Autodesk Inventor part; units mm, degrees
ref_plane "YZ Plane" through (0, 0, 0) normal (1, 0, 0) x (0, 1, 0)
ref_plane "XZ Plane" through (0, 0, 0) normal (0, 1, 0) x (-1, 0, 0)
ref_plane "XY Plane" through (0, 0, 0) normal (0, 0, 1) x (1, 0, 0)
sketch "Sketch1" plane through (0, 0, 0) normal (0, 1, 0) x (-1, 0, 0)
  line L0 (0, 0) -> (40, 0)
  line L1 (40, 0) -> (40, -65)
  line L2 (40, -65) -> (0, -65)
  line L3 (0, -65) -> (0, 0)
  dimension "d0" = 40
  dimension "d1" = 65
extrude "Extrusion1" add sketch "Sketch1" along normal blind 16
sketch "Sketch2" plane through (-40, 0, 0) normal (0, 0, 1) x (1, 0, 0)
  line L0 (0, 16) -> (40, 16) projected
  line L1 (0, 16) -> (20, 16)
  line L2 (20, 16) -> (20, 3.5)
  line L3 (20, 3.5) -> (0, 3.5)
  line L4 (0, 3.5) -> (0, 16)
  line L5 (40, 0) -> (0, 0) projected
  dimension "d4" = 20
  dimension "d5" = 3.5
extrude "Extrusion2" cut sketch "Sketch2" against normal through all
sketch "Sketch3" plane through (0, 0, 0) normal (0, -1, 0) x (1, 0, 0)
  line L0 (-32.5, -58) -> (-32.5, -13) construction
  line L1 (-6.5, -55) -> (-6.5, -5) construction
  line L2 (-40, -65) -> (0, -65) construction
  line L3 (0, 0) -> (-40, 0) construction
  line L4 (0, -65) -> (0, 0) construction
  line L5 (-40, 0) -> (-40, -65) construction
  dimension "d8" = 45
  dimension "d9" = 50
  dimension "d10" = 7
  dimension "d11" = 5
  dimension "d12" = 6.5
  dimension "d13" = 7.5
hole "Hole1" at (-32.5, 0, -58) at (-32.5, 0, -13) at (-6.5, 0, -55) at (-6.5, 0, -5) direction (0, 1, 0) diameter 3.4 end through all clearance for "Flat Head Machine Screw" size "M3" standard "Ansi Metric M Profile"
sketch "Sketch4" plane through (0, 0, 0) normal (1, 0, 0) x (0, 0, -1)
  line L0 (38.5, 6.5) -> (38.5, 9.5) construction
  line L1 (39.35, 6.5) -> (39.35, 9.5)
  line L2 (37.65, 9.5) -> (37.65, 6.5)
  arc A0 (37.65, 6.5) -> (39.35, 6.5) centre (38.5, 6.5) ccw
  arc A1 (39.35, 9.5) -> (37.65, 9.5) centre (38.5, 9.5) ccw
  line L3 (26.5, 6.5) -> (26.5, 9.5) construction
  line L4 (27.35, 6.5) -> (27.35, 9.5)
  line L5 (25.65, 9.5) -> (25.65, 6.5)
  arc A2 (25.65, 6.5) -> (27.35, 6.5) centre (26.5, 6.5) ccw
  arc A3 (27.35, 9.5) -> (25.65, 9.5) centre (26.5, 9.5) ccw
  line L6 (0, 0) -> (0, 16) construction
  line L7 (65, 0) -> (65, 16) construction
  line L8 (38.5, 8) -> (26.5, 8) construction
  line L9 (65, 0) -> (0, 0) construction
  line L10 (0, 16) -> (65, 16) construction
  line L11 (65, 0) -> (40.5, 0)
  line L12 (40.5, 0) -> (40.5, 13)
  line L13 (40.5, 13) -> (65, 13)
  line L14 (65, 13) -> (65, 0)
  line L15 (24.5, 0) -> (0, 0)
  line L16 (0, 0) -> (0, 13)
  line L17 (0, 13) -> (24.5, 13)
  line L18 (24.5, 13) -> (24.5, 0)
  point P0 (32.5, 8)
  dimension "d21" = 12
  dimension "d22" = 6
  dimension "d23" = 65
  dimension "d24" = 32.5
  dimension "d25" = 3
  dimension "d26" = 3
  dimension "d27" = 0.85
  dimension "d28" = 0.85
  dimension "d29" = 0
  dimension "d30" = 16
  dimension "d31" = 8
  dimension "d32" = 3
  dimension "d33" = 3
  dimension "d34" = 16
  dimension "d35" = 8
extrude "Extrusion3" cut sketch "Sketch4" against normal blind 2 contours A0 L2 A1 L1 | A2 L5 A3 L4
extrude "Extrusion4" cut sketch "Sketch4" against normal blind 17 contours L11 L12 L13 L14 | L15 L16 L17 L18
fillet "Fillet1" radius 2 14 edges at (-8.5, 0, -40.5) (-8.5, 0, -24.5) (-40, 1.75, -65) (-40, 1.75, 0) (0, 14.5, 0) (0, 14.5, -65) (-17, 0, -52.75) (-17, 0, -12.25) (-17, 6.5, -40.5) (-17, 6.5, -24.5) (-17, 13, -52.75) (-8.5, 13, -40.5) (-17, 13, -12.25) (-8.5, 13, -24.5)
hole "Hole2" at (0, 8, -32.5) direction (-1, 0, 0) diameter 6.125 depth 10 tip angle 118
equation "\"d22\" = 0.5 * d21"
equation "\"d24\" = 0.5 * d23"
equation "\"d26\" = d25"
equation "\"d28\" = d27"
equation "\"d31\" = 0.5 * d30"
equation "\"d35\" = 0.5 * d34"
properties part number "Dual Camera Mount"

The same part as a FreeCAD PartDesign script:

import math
import FreeCAD as App
import Part
import Sketcher
from FreeCAD import Vector
Q = App.Units.Quantity


def edges_at(feature, points):
    """Names of the edges that pass closest to the given points."""
    edges = feature.Shape.Edges
    near = lambda p: min(range(len(edges)), key=lambda i: edges[i].distToShape(Part.Vertex(*p))[0])
    return sorted({f"Edge{near(p) + 1}" for p in points})

doc = App.newDocument("Part")
body = doc.addObject("PartDesign::Body", "Body")

sketch1 = body.newObject("Sketcher::SketchObject", "Sketch")
sketch1.AttachmentSupport = (doc.getObject("XZ_Plane"), [""])
sketch1.MapMode = "FlatFace"
sketch1.addGeometry(Part.LineSegment(Vector(-40, 0, 0), Vector(0, 0, 0)), False)
sketch1.addGeometry(Part.LineSegment(Vector(0, 0, 0), Vector(0, -65, 0)), False)
sketch1.addGeometry(Part.LineSegment(Vector(0, -65, 0), Vector(-40, -65, 0)), False)
sketch1.addGeometry(Part.LineSegment(Vector(-40, -65, 0), Vector(-40, 0, 0)), False)
sketch1.addConstraint(Sketcher.Constraint("Coincident", 0, 2, 1, 1))
sketch1.addConstraint(Sketcher.Constraint("Coincident", 1, 2, 2, 1))
sketch1.addConstraint(Sketcher.Constraint("Coincident", 2, 2, 3, 1))
sketch1.addConstraint(Sketcher.Constraint("Coincident", 3, 2, 0, 1))
sketch1.addConstraint(Sketcher.Constraint("Horizontal", 0))
sketch1.addConstraint(Sketcher.Constraint("Vertical", 1))
sketch1.addConstraint(Sketcher.Constraint("Horizontal", 2))
sketch1.addConstraint(Sketcher.Constraint("Vertical", 3))
sketch1.addConstraint(Sketcher.Constraint("Coincident", 0, 2, -1, 1))
sketch1.addConstraint(Sketcher.Constraint("DistanceX", 0, 1, 0, 2, Q("40 mm")))
sketch1.addConstraint(Sketcher.Constraint("DistanceY", 1, 2, 1, 1, Q("65 mm")))
pad1 = body.newObject("PartDesign::Pad", "Pad")
pad1.Profile = sketch1
pad1.Length = 16
pad1.Reversed = True

sketch2 = body.newObject("Sketcher::SketchObject", "Sketch001")
sketch2.AttachmentSupport = (doc.getObject("XY_Plane"), [""])
sketch2.MapMode = "FlatFace"
sketch2.addGeometry(Part.LineSegment(Vector(-20, 16, 0), Vector(-40, 16, 0)), False)
sketch2.addGeometry(Part.LineSegment(Vector(-40, 16, 0), Vector(-40, 4, 0)), False)
sketch2.addGeometry(Part.LineSegment(Vector(-40, 4, 0), Vector(-20, 4, 0)), False)
sketch2.addGeometry(Part.LineSegment(Vector(-20, 4, 0), Vector(-20, 16, 0)), False)
sketch2.addConstraint(Sketcher.Constraint("Coincident", 0, 2, 1, 1))
sketch2.addConstraint(Sketcher.Constraint("Coincident", 1, 2, 2, 1))
sketch2.addConstraint(Sketcher.Constraint("Coincident", 2, 2, 3, 1))
sketch2.addConstraint(Sketcher.Constraint("Coincident", 3, 2, 0, 1))
sketch2.addConstraint(Sketcher.Constraint("Horizontal", 0))
sketch2.addConstraint(Sketcher.Constraint("Vertical", 1))
sketch2.addConstraint(Sketcher.Constraint("Horizontal", 2))
sketch2.addConstraint(Sketcher.Constraint("Vertical", 3))
sketch2.addConstraint(Sketcher.Constraint("DistanceX", 0, 2, 0, 1, Q("20 mm")))
sketch2.addConstraint(Sketcher.Constraint("DistanceX", 2, 2, -1, 1, Q("20 mm")))
sketch2.addConstraint(Sketcher.Constraint("DistanceY", -1, 1, 1, 2, Q("3.5 mm")))
sketch2.addConstraint(Sketcher.Constraint("DistanceY", 1, 2, 1, 1, Q("12.5 mm")))
pocket1 = body.newObject("PartDesign::Pocket", "Pocket")
pocket1.Profile = sketch2
pocket1.Type = "ThroughAll"

sketch3 = body.newObject("Sketcher::SketchObject", "Sketch002")
sketch3.AttachmentSupport = (doc.getObject("XZ_Plane"), [""])
sketch3.MapMode = "FlatFace"
sketch3.addGeometry(Part.Circle(Vector(-32.5, -58, 0), Vector(0, 0, 1), 1.7), False)
sketch3.addGeometry(Part.Circle(Vector(-32.5, -13, 0), Vector(0, 0, 1), 1.7), False)
sketch3.addGeometry(Part.Circle(Vector(-6.5, -55, 0), Vector(0, 0, 1), 1.7), False)
sketch3.addGeometry(Part.Circle(Vector(-6.5, -5, 0), Vector(0, 0, 1), 1.7), False)
sketch3.addConstraint(Sketcher.Constraint("Equal", 0, 1))
sketch3.addConstraint(Sketcher.Constraint("Equal", 1, 2))
sketch3.addConstraint(Sketcher.Constraint("Equal", 2, 3))
sketch3.addConstraint(Sketcher.Constraint("Vertical", 0, 3, 1, 3))
sketch3.addConstraint(Sketcher.Constraint("Vertical", 2, 3, 3, 3))
sketch3.addConstraint(Sketcher.Constraint("Diameter", 0, Q("3.4 mm")))
sketch3.addConstraint(Sketcher.Constraint("DistanceY", 0, 3, -1, 1, Q("58 mm")))
sketch3.addConstraint(Sketcher.Constraint("DistanceY", 1, 3, -1, 1, Q("13 mm")))
sketch3.addConstraint(Sketcher.Constraint("DistanceY", 2, 3, -1, 1, Q("55 mm")))
sketch3.addConstraint(Sketcher.Constraint("DistanceY", 3, 3, -1, 1, Q("5 mm")))
sketch3.addConstraint(Sketcher.Constraint("DistanceX", 0, 3, 2, 3, Q("26 mm")))
sketch3.addConstraint(Sketcher.Constraint("DistanceX", 0, 3, -1, 1, Q("32.5 mm")))
doc.recompute()
hole = body.newObject("PartDesign::Hole", "Hole")
hole.Profile = sketch3
hole.ThreadType = "None"
hole.Diameter = 3.4
hole.DepthType = "ThroughAll"

sketch4 = body.newObject("Sketcher::SketchObject", "Sketch003")
sketch4.AttachmentSupport = (doc.getObject("YZ_Plane"), [""])
sketch4.MapMode = "FlatFace"
sketch4.addGeometry(Part.ArcOfCircle(Part.Circle(Vector(6.5, -38.5, 0), Vector(0, 0, 1), 0.9), math.radians(90), math.radians(270)), False)
sketch4.addGeometry(Part.LineSegment(Vector(6.5, -39.4, 0), Vector(9.5, -39.4, 0)), False)
sketch4.addGeometry(Part.ArcOfCircle(Part.Circle(Vector(9.5, -38.5, 0), Vector(0, 0, 1), 0.9), math.radians(-90), math.radians(90)), False)
sketch4.addGeometry(Part.LineSegment(Vector(9.5, -37.6, 0), Vector(6.5, -37.6, 0)), False)
sketch4.addGeometry(Part.ArcOfCircle(Part.Circle(Vector(6.5, -26.5, 0), Vector(0, 0, 1), 0.9), math.radians(90), math.radians(270)), False)
sketch4.addGeometry(Part.LineSegment(Vector(6.5, -27.4, 0), Vector(9.5, -27.4, 0)), False)
sketch4.addGeometry(Part.ArcOfCircle(Part.Circle(Vector(9.5, -26.5, 0), Vector(0, 0, 1), 0.9), math.radians(-90), math.radians(90)), False)
sketch4.addGeometry(Part.LineSegment(Vector(9.5, -25.6, 0), Vector(6.5, -25.6, 0)), False)
sketch4.addConstraint(Sketcher.Constraint("Tangent", 0, 2, 1, 1))
sketch4.addConstraint(Sketcher.Constraint("Tangent", 1, 2, 2, 1))
sketch4.addConstraint(Sketcher.Constraint("Tangent", 2, 2, 3, 1))
sketch4.addConstraint(Sketcher.Constraint("Tangent", 3, 2, 0, 1))
sketch4.addConstraint(Sketcher.Constraint("Tangent", 4, 2, 5, 1))
sketch4.addConstraint(Sketcher.Constraint("Tangent", 5, 2, 6, 1))
sketch4.addConstraint(Sketcher.Constraint("Tangent", 6, 2, 7, 1))
sketch4.addConstraint(Sketcher.Constraint("Tangent", 7, 2, 4, 1))
sketch4.addConstraint(Sketcher.Constraint("Horizontal", 1))
sketch4.addConstraint(Sketcher.Constraint("Horizontal", 3))
sketch4.addConstraint(Sketcher.Constraint("Horizontal", 5))
sketch4.addConstraint(Sketcher.Constraint("Horizontal", 7))
sketch4.addConstraint(Sketcher.Constraint("Equal", 2, 4))
sketch4.addConstraint(Sketcher.Constraint("Vertical", 0, 3, 4, 3))
sketch4.addConstraint(Sketcher.Constraint("Vertical", 2, 3, 6, 3))
sketch4.addConstraint(Sketcher.Constraint("DistanceX", 1, 1, 1, 2, Q("3 mm")))
sketch4.addConstraint(Sketcher.Constraint("Radius", 0, Q("0.85 mm")))
sketch4.addConstraint(Sketcher.Constraint("DistanceY", 0, 3, 4, 3, Q("12 mm")))
sketch4.addConstraint(Sketcher.Constraint("DistanceX", -1, 1, 0, 3, Q("6.5 mm")))
sketch4.addConstraint(Sketcher.Constraint("DistanceY", 0, 3, -1, 1, Q("38.5 mm")))
pocket2 = body.newObject("PartDesign::Pocket", "Pocket001")
pocket2.Profile = sketch4
pocket2.Length = 2

sketch5 = body.newObject("Sketcher::SketchObject", "Sketch004")
sketch5.AttachmentSupport = (doc.getObject("YZ_Plane"), [""])
sketch5.MapMode = "FlatFace"
sketch5.addGeometry(Part.LineSegment(Vector(0, -40, 0), Vector(0, -65, 0)), False)
sketch5.addGeometry(Part.LineSegment(Vector(0, -65, 0), Vector(13, -65, 0)), False)
sketch5.addGeometry(Part.LineSegment(Vector(13, -65, 0), Vector(13, -40, 0)), False)
sketch5.addGeometry(Part.LineSegment(Vector(13, -40, 0), Vector(0, -40, 0)), False)
sketch5.addGeometry(Part.LineSegment(Vector(0, 0, 0), Vector(0, -24, 0)), False)
sketch5.addGeometry(Part.LineSegment(Vector(0, -24, 0), Vector(13, -24, 0)), False)
sketch5.addGeometry(Part.LineSegment(Vector(13, -24, 0), Vector(13, 0, 0)), False)
sketch5.addGeometry(Part.LineSegment(Vector(13, 0, 0), Vector(0, 0, 0)), False)
sketch5.addConstraint(Sketcher.Constraint("Coincident", 0, 2, 1, 1))
sketch5.addConstraint(Sketcher.Constraint("Coincident", 1, 2, 2, 1))
sketch5.addConstraint(Sketcher.Constraint("Coincident", 2, 2, 3, 1))
sketch5.addConstraint(Sketcher.Constraint("Coincident", 3, 2, 0, 1))
sketch5.addConstraint(Sketcher.Constraint("Coincident", 4, 2, 5, 1))
sketch5.addConstraint(Sketcher.Constraint("Coincident", 5, 2, 6, 1))
sketch5.addConstraint(Sketcher.Constraint("Coincident", 6, 2, 7, 1))
sketch5.addConstraint(Sketcher.Constraint("Coincident", 7, 2, 4, 1))
sketch5.addConstraint(Sketcher.Constraint("Vertical", 0))
sketch5.addConstraint(Sketcher.Constraint("Horizontal", 1))
sketch5.addConstraint(Sketcher.Constraint("Vertical", 2))
sketch5.addConstraint(Sketcher.Constraint("Horizontal", 3))
sketch5.addConstraint(Sketcher.Constraint("Vertical", 4))
sketch5.addConstraint(Sketcher.Constraint("Horizontal", 5))
sketch5.addConstraint(Sketcher.Constraint("Vertical", 6))
sketch5.addConstraint(Sketcher.Constraint("Horizontal", 7))
sketch5.addConstraint(Sketcher.Constraint("Coincident", 7, 2, -1, 1))
sketch5.addConstraint(Sketcher.Constraint("PointOnObject", 0, 2, -2))
sketch5.addConstraint(Sketcher.Constraint("Vertical", 2, 2, 5, 2))
sketch5.addConstraint(Sketcher.Constraint("Equal", 2, 4))
sketch5.addConstraint(Sketcher.Constraint("DistanceY", 0, 2, -1, 1, Q("65 mm")))
sketch5.addConstraint(Sketcher.Constraint("DistanceY", 3, 2, 4, 2, Q("16 mm")))
sketch5.addConstraint(Sketcher.Constraint("DistanceX", 1, 1, 1, 2, Q("13 mm")))
pocket3 = body.newObject("PartDesign::Pocket", "Pocket002")
pocket3.Profile = sketch5
pocket3.Length = 17
doc.recompute()

fillet = body.newObject("PartDesign::Fillet", "Fillet")
fillet.Base = (pocket3, edges_at(pocket3, [
    (-8.5, 0, -40.5),
    (-8.5, 0, -24.5),
    (-40, 1.75, -65),
    (-40, 1.75, 0),
    (0, 14.5, 0),
    (0, 14.5, -65),
    (-17, 0, -52.75),
    (-17, 0, -12.25),
    (-17, 6.5, -40.5),
    (-17, 6.5, -24.5),
    (-17, 13, -52.75),
    (-8.5, 13, -40.5),
    (-17, 13, -12.25),
    (-8.5, 13, -24.5),
]))
fillet.Radius = 2

sketch6 = body.newObject("Sketcher::SketchObject", "Sketch005")
sketch6.AttachmentSupport = (doc.getObject("YZ_Plane"), [""])
sketch6.MapMode = "FlatFace"
sketch6.addGeometry(Part.Circle(Vector(8, -32.5, 0), Vector(0, 0, 1), 3.1), False)
sketch6.addConstraint(Sketcher.Constraint("Diameter", 0, Q("6.125 mm")))
sketch6.addConstraint(Sketcher.Constraint("DistanceX", -1, 1, 0, 3, Q("8 mm")))
sketch6.addConstraint(Sketcher.Constraint("DistanceY", 0, 3, -1, 1, Q("32.5 mm")))
doc.recompute()
hole2 = body.newObject("PartDesign::Hole", "Hole001")
hole2.Profile = sketch6
hole2.ThreadType = "None"
hole2.Diameter = 6.125
hole2.DepthType = "Dimension"
hole2.Depth = 10
hole2.DrillPoint = "Angled"
hole2.DrillPointAngle = 118

doc.recompute()
